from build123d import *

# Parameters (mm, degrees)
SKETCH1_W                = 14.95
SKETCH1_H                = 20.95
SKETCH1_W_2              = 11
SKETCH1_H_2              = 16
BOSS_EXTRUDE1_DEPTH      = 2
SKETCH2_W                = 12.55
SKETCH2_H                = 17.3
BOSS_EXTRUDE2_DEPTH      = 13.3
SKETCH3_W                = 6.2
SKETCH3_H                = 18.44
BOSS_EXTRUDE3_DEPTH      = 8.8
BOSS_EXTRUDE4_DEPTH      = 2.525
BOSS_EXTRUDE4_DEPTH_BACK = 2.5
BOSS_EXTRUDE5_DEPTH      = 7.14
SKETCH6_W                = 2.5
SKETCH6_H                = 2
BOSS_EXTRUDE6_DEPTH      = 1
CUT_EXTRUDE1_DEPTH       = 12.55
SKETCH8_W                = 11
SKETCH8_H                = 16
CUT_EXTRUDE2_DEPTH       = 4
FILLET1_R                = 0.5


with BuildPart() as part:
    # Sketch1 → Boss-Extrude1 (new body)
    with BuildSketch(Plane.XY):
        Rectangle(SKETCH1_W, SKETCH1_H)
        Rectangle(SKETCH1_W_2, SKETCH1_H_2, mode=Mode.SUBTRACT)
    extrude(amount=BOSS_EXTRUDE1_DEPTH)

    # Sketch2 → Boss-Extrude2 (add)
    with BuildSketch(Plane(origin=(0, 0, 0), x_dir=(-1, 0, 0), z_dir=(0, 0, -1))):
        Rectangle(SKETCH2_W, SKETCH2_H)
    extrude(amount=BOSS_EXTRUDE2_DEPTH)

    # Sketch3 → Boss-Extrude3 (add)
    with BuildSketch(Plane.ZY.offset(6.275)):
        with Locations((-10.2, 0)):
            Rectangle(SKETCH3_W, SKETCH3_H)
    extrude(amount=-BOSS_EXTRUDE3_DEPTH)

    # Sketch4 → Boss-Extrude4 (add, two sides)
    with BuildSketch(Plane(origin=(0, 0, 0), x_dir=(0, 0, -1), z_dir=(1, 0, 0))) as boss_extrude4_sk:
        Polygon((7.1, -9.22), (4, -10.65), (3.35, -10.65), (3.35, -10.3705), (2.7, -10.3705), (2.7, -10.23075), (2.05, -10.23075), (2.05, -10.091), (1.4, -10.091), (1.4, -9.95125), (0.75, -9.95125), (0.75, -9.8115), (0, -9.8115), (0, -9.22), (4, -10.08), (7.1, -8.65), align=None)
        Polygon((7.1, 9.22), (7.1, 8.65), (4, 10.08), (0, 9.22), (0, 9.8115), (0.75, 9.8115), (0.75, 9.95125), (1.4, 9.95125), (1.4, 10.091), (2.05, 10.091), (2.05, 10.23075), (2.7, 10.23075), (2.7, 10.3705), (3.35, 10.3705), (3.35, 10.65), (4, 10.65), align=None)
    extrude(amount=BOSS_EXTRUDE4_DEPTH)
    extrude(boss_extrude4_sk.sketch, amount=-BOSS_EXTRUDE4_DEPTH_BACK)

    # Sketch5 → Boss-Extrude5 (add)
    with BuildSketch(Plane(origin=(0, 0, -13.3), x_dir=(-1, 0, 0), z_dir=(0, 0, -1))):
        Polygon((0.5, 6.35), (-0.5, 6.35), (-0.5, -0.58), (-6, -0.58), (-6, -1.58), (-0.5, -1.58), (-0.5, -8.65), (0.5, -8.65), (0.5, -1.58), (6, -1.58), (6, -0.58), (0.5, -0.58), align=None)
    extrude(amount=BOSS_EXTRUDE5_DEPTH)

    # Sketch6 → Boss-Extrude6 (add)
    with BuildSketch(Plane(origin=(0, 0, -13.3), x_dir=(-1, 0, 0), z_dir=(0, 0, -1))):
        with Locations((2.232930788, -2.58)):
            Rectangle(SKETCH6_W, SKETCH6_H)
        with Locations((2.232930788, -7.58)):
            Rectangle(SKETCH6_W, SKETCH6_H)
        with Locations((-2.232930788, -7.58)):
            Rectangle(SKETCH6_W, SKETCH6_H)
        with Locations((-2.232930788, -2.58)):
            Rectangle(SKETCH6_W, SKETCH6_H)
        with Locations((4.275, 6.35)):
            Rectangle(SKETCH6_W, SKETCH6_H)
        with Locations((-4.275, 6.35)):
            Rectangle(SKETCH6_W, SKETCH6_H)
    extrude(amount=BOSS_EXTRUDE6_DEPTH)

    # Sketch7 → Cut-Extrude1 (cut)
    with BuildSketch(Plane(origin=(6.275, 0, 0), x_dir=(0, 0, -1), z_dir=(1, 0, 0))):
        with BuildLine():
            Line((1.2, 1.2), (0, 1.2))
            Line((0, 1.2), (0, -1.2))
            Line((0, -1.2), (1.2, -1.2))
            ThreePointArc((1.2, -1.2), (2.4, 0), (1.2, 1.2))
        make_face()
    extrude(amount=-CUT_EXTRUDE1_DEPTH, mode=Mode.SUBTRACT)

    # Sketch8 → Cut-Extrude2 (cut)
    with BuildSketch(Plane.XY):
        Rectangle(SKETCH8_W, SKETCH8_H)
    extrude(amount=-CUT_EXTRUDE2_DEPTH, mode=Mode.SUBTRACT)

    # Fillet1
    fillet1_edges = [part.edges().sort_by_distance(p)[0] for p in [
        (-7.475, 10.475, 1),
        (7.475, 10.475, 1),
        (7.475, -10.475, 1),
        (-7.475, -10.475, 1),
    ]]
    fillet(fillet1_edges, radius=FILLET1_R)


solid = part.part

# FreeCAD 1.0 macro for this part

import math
import FreeCAD as App
import Part
import Sketcher
from FreeCAD import Vector


def edges_at(feature, points):
    """Names of the edges that pass closest to the given points."""
    edges = feature.Shape.Edges
    near = lambda p: min(range(len(edges)), key=lambda i: edges[i].distToShape(Part.Vertex(*p))[0])
    return sorted({f"Edge{near(p) + 1}" for p in points})


def add_polygon(sketch, points):
    """Adds a closed chain of lines whose ends are joined by coincident constraints."""
    first, n = sketch.GeometryCount, len(points)
    for a, b in zip(points, points[1:] + points[:1]):
        sketch.addGeometry(Part.LineSegment(App.Vector(*a, 0), App.Vector(*b, 0)), False)
    for i in range(n):
        sketch.addConstraint(Sketcher.Constraint("Coincident", first + i, 2, first + (i + 1) % n, 1))

doc = App.newDocument("Part")
body = doc.addObject("PartDesign::Body", "Body")

# Sketch on XY plane
sketch1 = doc.addObject("Sketcher::SketchObject", "Sketch")
body.addObject(sketch1)
sketch1.AttachmentSupport = (doc.XY_Plane, [""])
sketch1.MapMode = "FlatFace"
add_polygon(sketch1, [(-7, 10), (-7, -10), (7, -10), (7, 10)])  # lines 0-3
add_polygon(sketch1, [(6, -8), (-6, -8), (-6, 8), (6, 8)])  # lines 4-7
sketch1.addConstraint(Sketcher.Constraint("Vertical", 0))
sketch1.addConstraint(Sketcher.Constraint("Horizontal", 1))
sketch1.addConstraint(Sketcher.Constraint("Vertical", 2))
sketch1.addConstraint(Sketcher.Constraint("Horizontal", 3))
sketch1.addConstraint(Sketcher.Constraint("Horizontal", 4))
sketch1.addConstraint(Sketcher.Constraint("Vertical", 5))
sketch1.addConstraint(Sketcher.Constraint("Horizontal", 6))
sketch1.addConstraint(Sketcher.Constraint("Vertical", 7))
sketch1.addConstraint(Sketcher.Constraint("Symmetric", 0, 2, 2, 2, -1, 1))
sketch1.addConstraint(Sketcher.Constraint("Symmetric", 4, 2, 6, 2, -1, 1))
sketch1.addConstraint(Sketcher.Constraint("DistanceX", 4, 2, 4, 1, 11.0))
sketch1.addConstraint(Sketcher.Constraint("DistanceY", 5, 1, 5, 2, 16.0))
sketch1.addConstraint(Sketcher.Constraint("DistanceX", 1, 1, 1, 2, 14.95))
sketch1.addConstraint(Sketcher.Constraint("DistanceY", 0, 2, 0, 1, 20.95))
pad1 = doc.addObject("PartDesign::Pad", "Pad")
body.addObject(pad1)
pad1.Profile = sketch1
pad1.Length = 2

# Sketch on XY plane
sketch2 = doc.addObject("Sketcher::SketchObject", "Sketch001")
body.addObject(sketch2)
sketch2.AttachmentSupport = (doc.XY_Plane, [""])
sketch2.MapMode = "FlatFace"
add_polygon(sketch2, [(6, 9), (6, -9), (-6, -9), (-6, 9)])  # lines 0-3
sketch2.addConstraint(Sketcher.Constraint("Vertical", 0))
sketch2.addConstraint(Sketcher.Constraint("Horizontal", 1))
sketch2.addConstraint(Sketcher.Constraint("Vertical", 2))
sketch2.addConstraint(Sketcher.Constraint("Horizontal", 3))
sketch2.addConstraint(Sketcher.Constraint("Symmetric", 0, 2, 2, 2, -1, 1))
sketch2.addConstraint(Sketcher.Constraint("DistanceY", 0, 2, 0, 1, 17.3))
sketch2.addConstraint(Sketcher.Constraint("DistanceX", 1, 2, 1, 1, 12.55))
pad2 = doc.addObject("PartDesign::Pad", "Pad001")
body.addObject(pad2)
pad2.Profile = sketch2
pad2.Length = 13.3
pad2.Reversed = True

# Sketch on YZ plane
sketch3 = doc.addObject("Sketcher::SketchObject", "Sketch002")
body.addObject(sketch3)
sketch3.AttachmentSupport = (doc.YZ_Plane, [""])
sketch3.MapMode = "FlatFace"
sketch3.AttachmentOffset = App.Placement(Vector(0, 0, -6.275), App.Rotation())
add_polygon(sketch3, [(9, -13), (-9, -13), (-9, -7), (9, -7)])  # lines 0-3
sketch3.addConstraint(Sketcher.Constraint("Horizontal", 0))
sketch3.addConstraint(Sketcher.Constraint("Vertical", 1))
sketch3.addConstraint(Sketcher.Constraint("Horizontal", 2))
sketch3.addConstraint(Sketcher.Constraint("Vertical", 3))
sketch3.addConstraint(Sketcher.Constraint("DistanceY", 1, 1, 1, 2, 6.2))
sketch3.addConstraint(Sketcher.Constraint("DistanceX", 0, 2, 0, 1, 18.44))
sketch3.addConstraint(Sketcher.Constraint("DistanceY", 0, 2, -1, 1, 13.3))
sketch3.addConstraint(Sketcher.Constraint("DistanceX", 0, 2, -1, 1, 9.22))
pad3 = doc.addObject("PartDesign::Pad", "Pad002")
body.addObject(pad3)
pad3.Profile = sketch3
pad3.Length = 8.8

# Sketch on YZ plane
sketch4 = doc.addObject("Sketcher::SketchObject", "Sketch003")
body.addObject(sketch4)
sketch4.AttachmentSupport = (doc.YZ_Plane, [""])
sketch4.MapMode = "FlatFace"
add_polygon(sketch4, [(-10.65, -4), (-9.22, -7.1), (-8.65, -7.1), (-10.08, -4), (-9.22, 0), (-9.81, 0), (-9.81, -0.75), (-9.95, -0.75), (-9.95, -1.4), (-10.09, -1.4), (-10.09, -2.05), (-10.23, -2.05), (-10.23, -2.7), (-10.37, -2.7), (-10.37, -3.35), (-10.65, -3.35)])  # lines 0-15
add_polygon(sketch4, [(8.65, -7.1), (9.22, -7.1), (10.65, -4), (10.65, -3.35), (10.37, -3.35), (10.37, -2.7), (10.23, -2.7), (10.23, -2.05), (10.09, -2.05), (10.09, -1.4), (9.95, -1.4), (9.95, -0.75), (9.81, -0.75), (9.81, 0), (9.22, 0), (10.08, -4)])  # lines 16-31
sketch4.addConstraint(Sketcher.Constraint("Horizontal", 1))
sketch4.addConstraint(Sketcher.Constraint("Horizontal", 4))
sketch4.addConstraint(Sketcher.Constraint("Vertical", 5))
sketch4.addConstraint(Sketcher.Constraint("Horizontal", 6))
sketch4.addConstraint(Sketcher.Constraint("Vertical", 7))
sketch4.addConstraint(Sketcher.Constraint("Horizontal", 8))
sketch4.addConstraint(Sketcher.Constraint("Vertical", 9))
sketch4.addConstraint(Sketcher.Constraint("Horizontal", 10))
sketch4.addConstraint(Sketcher.Constraint("Vertical", 11))
sketch4.addConstraint(Sketcher.Constraint("Horizontal", 12))
sketch4.addConstraint(Sketcher.Constraint("Vertical", 13))
sketch4.addConstraint(Sketcher.Constraint("Horizontal", 14))
sketch4.addConstraint(Sketcher.Constraint("Vertical", 15))
sketch4.addConstraint(Sketcher.Constraint("Horizontal", 16))
sketch4.addConstraint(Sketcher.Constraint("Vertical", 18))
sketch4.addConstraint(Sketcher.Constraint("Horizontal", 19))
sketch4.addConstraint(Sketcher.Constraint("Vertical", 20))
sketch4.addConstraint(Sketcher.Constraint("Horizontal", 21))
sketch4.addConstraint(Sketcher.Constraint("Vertical", 22))
sketch4.addConstraint(Sketcher.Constraint("Horizontal", 23))
sketch4.addConstraint(Sketcher.Constraint("Vertical", 24))
sketch4.addConstraint(Sketcher.Constraint("Horizontal", 25))
sketch4.addConstraint(Sketcher.Constraint("Vertical", 26))
sketch4.addConstraint(Sketcher.Constraint("Horizontal", 27))
sketch4.addConstraint(Sketcher.Constraint("Vertical", 28))
sketch4.addConstraint(Sketcher.Constraint("Horizontal", 29))
sketch4.addConstraint(Sketcher.Constraint("Symmetric", 4, 2, 28, 2, -1, 1))
sketch4.addConstraint(Sketcher.Constraint("Symmetric", 0, 2, 16, 2, -2))
sketch4.addConstraint(Sketcher.Constraint("Symmetric", 15, 2, 17, 2, -2))
sketch4.addConstraint(Sketcher.Constraint("Symmetric", 13, 2, 19, 2, -2))
sketch4.addConstraint(Sketcher.Constraint("Symmetric", 11, 2, 21, 2, -2))
sketch4.addConstraint(Sketcher.Constraint("Symmetric", 9, 2, 23, 2, -2))
sketch4.addConstraint(Sketcher.Constraint("Symmetric", 7, 2, 25, 2, -2))
sketch4.addConstraint(Sketcher.Constraint("Symmetric", 3, 2, 29, 2, -2))
sketch4.addConstraint(Sketcher.Constraint("Symmetric", 2, 2, 30, 2, -2))
sketch4.addConstraint(Sketcher.Constraint("Parallel", 0, 2))
sketch4.addConstraint(Sketcher.Constraint("Parallel", 17, 31))
sketch4.addConstraint(Sketcher.Constraint("Horizontal", 2, 2, 15, 2))
sketch4.addConstraint(Sketcher.Constraint("Horizontal", 6, 2, 26, 2))
sketch4.addConstraint(Sketcher.Constraint("Vertical", 0, 2, 3, 2))
sketch4.addConstraint(Sketcher.Constraint("Equal", 6, 8))
sketch4.addConstraint(Sketcher.Constraint("Equal", 8, 10))
sketch4.addConstraint(Sketcher.Constraint("Equal", 10, 12))
sketch4.addConstraint(Sketcher.Constraint("Equal", 7, 9))
sketch4.addConstraint(Sketcher.Constraint("Equal", 9, 11))
sketch4.addConstraint(Sketcher.Constraint("Equal", 11, 13))
sketch4.addConstraint(Sketcher.Constraint("Equal", 13, 15))
sketch4.addConstraint(Sketcher.Constraint("DistanceY", 2, 2, -1, 1, 4.0))
sketch4.addConstraint(Sketcher.Constraint("DistanceX", 31, 2, 17, 2, 2.0))
sketch4.addConstraint(Sketcher.Constraint("DistanceX", 1, 1, 1, 2, 0.57))
sketch4.addConstraint(Sketcher.Constraint("DistanceY", 5, 2, 5, 1, 0.75))
sketch4.addConstraint(Sketcher.Constraint("DistanceY", 0, 2, -1, 1, 7.1))
sketch4.addConstraint(Sketcher.Constraint("DistanceX", 2, 2, 16, 2, 19.3))
sketch4.addConstraint(Sketcher.Constraint("DistanceX", 4, 2, 4, 1, 0.5915))
sketch4.addConstraint(Sketcher.Constraint("DistanceX", 14, 2, 14, 1, 0.2795))
pad4 = doc.addObject("PartDesign::Pad", "Pad003")
body.addObject(pad4)
pad4.Profile = sketch4
pad4.Type = "TwoLengths"
pad4.Length = 2.525
pad4.Length2 = 2.5

# Sketch on XY plane
sketch5 = doc.addObject("Sketcher::SketchObject", "Sketch004")
body.addObject(sketch5)
sketch5.AttachmentSupport = (doc.XY_Plane, [""])
sketch5.MapMode = "FlatFace"
sketch5.AttachmentOffset = App.Placement(Vector(0, 0, -13.3), App.Rotation())
add_polygon(sketch5, [(-0.5, 6.3), (0.5, 6.3), (0.5, -0.6), (6, -0.6), (6, -1.6), (0.5, -1.6), (0.5, -8.7), (-0.5, -8.7), (-0.5, -1.6), (-6, -1.6), (-6, -0.6), (-0.5, -0.6)])  # lines 0-11
sketch5.addConstraint(Sketcher.Constraint("Horizontal", 0))
sketch5.addConstraint(Sketcher.Constraint("Vertical", 1))
sketch5.addConstraint(Sketcher.Constraint("Horizontal", 2))
sketch5.addConstraint(Sketcher.Constraint("Vertical", 3))
sketch5.addConstraint(Sketcher.Constraint("Horizontal", 4))
sketch5.addConstraint(Sketcher.Constraint("Vertical", 5))
sketch5.addConstraint(Sketcher.Constraint("Horizontal", 6))
sketch5.addConstraint(Sketcher.Constraint("Vertical", 7))
sketch5.addConstraint(Sketcher.Constraint("Horizontal", 8))
sketch5.addConstraint(Sketcher.Constraint("Vertical", 9))
sketch5.addConstraint(Sketcher.Constraint("Horizontal", 10))
sketch5.addConstraint(Sketcher.Constraint("Vertical", 11))
sketch5.addConstraint(Sketcher.Constraint("Symmetric", 4, 2, 7, 2, -2))
sketch5.addConstraint(Sketcher.Constraint("Symmetric", 2, 2, 9, 2, -2))
sketch5.addConstraint(Sketcher.Constraint("Vertical", 1, 2, 4, 2))
sketch5.addConstraint(Sketcher.Constraint("Vertical", 7, 2, 10, 2))
sketch5.addConstraint(Sketcher.Constraint("Equal", 6, 3))
sketch5.addConstraint(Sketcher.Constraint("DistanceX", 0, 1, 0, 2, 1.0))
sketch5.addConstraint(Sketcher.Constraint("DistanceX", 2, 1, 2, 2, 5.5))
sketch5.addConstraint(Sketcher.Constraint("DistanceY", 5, 2, 0, 2, 15.0))
sketch5.addConstraint(Sketcher.Constraint("DistanceY", 1, 2, 1, 1, 6.93))
sketch5.addConstraint(Sketcher.Constraint("DistanceY", -1, 1, 0, 2, 6.35))
pad5 = doc.addObject("PartDesign::Pad", "Pad004")
body.addObject(pad5)
pad5.Profile = sketch5
pad5.Length = 7.14
pad5.Reversed = True

# Sketch on XY plane
sketch6 = doc.addObject("Sketcher::SketchObject", "Sketch005")
body.addObject(sketch6)
sketch6.AttachmentSupport = (doc.XY_Plane, [""])
sketch6.MapMode = "FlatFace"
sketch6.AttachmentOffset = App.Placement(Vector(0, 0, -13.3), App.Rotation())
add_polygon(sketch6, [(-1, -1.6), (-1, -3.6), (-3.5, -3.6), (-3.5, -1.6)])  # lines 0-3
add_polygon(sketch6, [(-1, -6.6), (-1, -8.6), (-3.5, -8.6), (-3.5, -6.6)])  # lines 4-7
add_polygon(sketch6, [(3.5, -6.6), (3.5, -8.6), (1, -8.6), (1, -6.6)])  # lines 8-11
add_polygon(sketch6, [(3.5, -1.6), (3.5, -3.6), (1, -3.6), (1, -1.6)])  # lines 12-15
add_polygon(sketch6, [(-3, 7.3), (-3, 5.3), (-5.5, 5.3), (-5.5, 7.3)])  # lines 16-19
add_polygon(sketch6, [(5.5, 7.3), (5.5, 5.3), (3, 5.3), (3, 7.3)])  # lines 20-23
sketch6.addConstraint(Sketcher.Constraint("Vertical", 0))
sketch6.addConstraint(Sketcher.Constraint("Horizontal", 1))
sketch6.addConstraint(Sketcher.Constraint("Vertical", 2))
sketch6.addConstraint(Sketcher.Constraint("Horizontal", 3))
sketch6.addConstraint(Sketcher.Constraint("Vertical", 4))
sketch6.addConstraint(Sketcher.Constraint("Horizontal", 5))
sketch6.addConstraint(Sketcher.Constraint("Vertical", 6))
sketch6.addConstraint(Sketcher.Constraint("Horizontal", 7))
sketch6.addConstraint(Sketcher.Constraint("Vertical", 8))
sketch6.addConstraint(Sketcher.Constraint("Horizontal", 9))
sketch6.addConstraint(Sketcher.Constraint("Vertical", 10))
sketch6.addConstraint(Sketcher.Constraint("Horizontal", 11))
sketch6.addConstraint(Sketcher.Constraint("Vertical", 12))
sketch6.addConstraint(Sketcher.Constraint("Horizontal", 13))
sketch6.addConstraint(Sketcher.Constraint("Vertical", 14))
sketch6.addConstraint(Sketcher.Constraint("Horizontal", 15))
sketch6.addConstraint(Sketcher.Constraint("Vertical", 16))
sketch6.addConstraint(Sketcher.Constraint("Horizontal", 17))
sketch6.addConstraint(Sketcher.Constraint("Vertical", 18))
sketch6.addConstraint(Sketcher.Constraint("Horizontal", 19))
sketch6.addConstraint(Sketcher.Constraint("Vertical", 20))
sketch6.addConstraint(Sketcher.Constraint("Horizontal", 21))
sketch6.addConstraint(Sketcher.Constraint("Vertical", 22))
sketch6.addConstraint(Sketcher.Constraint("Horizontal", 23))
sketch6.addConstraint(Sketcher.Constraint("Symmetric", 5, 2, 8, 2, -2))
sketch6.addConstraint(Sketcher.Constraint("Symmetric", 7, 2, 10, 2, -2))
sketch6.addConstraint(Sketcher.Constraint("Symmetric", 1, 2, 12, 2, -2))
sketch6.addConstraint(Sketcher.Constraint("Symmetric", 3, 2, 14, 2, -2))
sketch6.addConstraint(Sketcher.Constraint("Symmetric", 17, 2, 20, 2, -2))
sketch6.addConstraint(Sketcher.Constraint("Symmetric", 19, 2, 22, 2, -2))
sketch6.addConstraint(Sketcher.Constraint("Vertical", 3, 2, 4, 2))
sketch6.addConstraint(Sketcher.Constraint("Vertical", 2, 2, 5, 2))
sketch6.addConstraint(Sketcher.Constraint("Equal", 15, 17))
sketch6.addConstraint(Sketcher.Constraint("Equal", 2, 4))
sketch6.addConstraint(Sketcher.Constraint("Equal", 14, 16))
sketch6.addConstraint(Sketcher.Constraint("DistanceY", 0, 2, 0, 1, 2.0))
sketch6.addConstraint(Sketcher.Constraint("DistanceX", 1, 2, 1, 1, 2.5))
sketch6.addConstraint(Sketcher.Constraint("DistanceY", 4, 2, 0, 2, 5.0))
sketch6.addConstraint(Sketcher.Constraint("DistanceY", 0, 2, -1, 1, 3.58))
sketch6.addConstraint(Sketcher.Constraint("DistanceY", -1, 1, 16, 2, 5.35))
sketch6.addConstraint(Sketcher.Constraint("DistanceX", 16, 2, 20, 2, 8.55))
sketch6.addConstraint(Sketcher.Constraint("DistanceX", 0, 2, -1, 1, 0.982931))
pad6 = doc.addObject("PartDesign::Pad", "Pad005")
body.addObject(pad6)
pad6.Profile = sketch6
pad6.Length = 1
pad6.Reversed = True

# Sketch on YZ plane
sketch7 = doc.addObject("Sketcher::SketchObject", "Sketch006")
body.addObject(sketch7)
sketch7.AttachmentSupport = (doc.YZ_Plane, [""])
sketch7.MapMode = "FlatFace"
sketch7.AttachmentOffset = App.Placement(Vector(0, 0, 6.275), App.Rotation())
sketch7.addGeometry(Part.LineSegment(Vector(1.2, -1.2, 0), Vector(1.2, 0, 0)), False)
sketch7.addGeometry(Part.LineSegment(Vector(1.2, 0, 0), Vector(-1.2, 0, 0)), False)
sketch7.addGeometry(Part.LineSegment(Vector(-1.2, 0, 0), Vector(-1.2, -1.2, 0)), False)
sketch7.addGeometry(Part.ArcOfCircle(Part.Circle(Vector(0, -1.2, 0), Vector(0, 0, 1), 1.2), math.radians(180), math.radians(360)), False)
sketch7.addConstraint(Sketcher.Constraint("Coincident", 0, 2, 1, 1))
sketch7.addConstraint(Sketcher.Constraint("Coincident", 1, 2, 2, 1))
sketch7.addConstraint(Sketcher.Constraint("Tangent", 2, 2, 3, 1))
sketch7.addConstraint(Sketcher.Constraint("Tangent", 3, 2, 0, 1))
sketch7.addConstraint(Sketcher.Constraint("Vertical", 0))
sketch7.addConstraint(Sketcher.Constraint("Horizontal", 1))
sketch7.addConstraint(Sketcher.Constraint("Vertical", 2))
sketch7.addConstraint(Sketcher.Constraint("Symmetric", 0, 2, 1, 2, -1, 1))
sketch7.addConstraint(Sketcher.Constraint("Radius", 3, 1.2))
sketch7.addConstraint(Sketcher.Constraint("DistanceY", 0, 1, 0, 2, 1.2))
pocket1 = doc.addObject("PartDesign::Pocket", "Pocket")
body.addObject(pocket1)
pocket1.Profile = sketch7
pocket1.Length = 12.55

# Sketch on XY plane
sketch8 = doc.addObject("Sketcher::SketchObject", "Sketch007")
body.addObject(sketch8)
sketch8.AttachmentSupport = (doc.XY_Plane, [""])
sketch8.MapMode = "FlatFace"
add_polygon(sketch8, [(-6, 8), (-6, -8), (6, -8), (6, 8)])  # lines 0-3
sketch8.addConstraint(Sketcher.Constraint("Vertical", 0))
sketch8.addConstraint(Sketcher.Constraint("Horizontal", 1))
sketch8.addConstraint(Sketcher.Constraint("Vertical", 2))
sketch8.addConstraint(Sketcher.Constraint("Horizontal", 3))
sketch8.addConstraint(Sketcher.Constraint("Symmetric", 0, 2, 2, 2, -1, 1))
sketch8.addConstraint(Sketcher.Constraint("DistanceX", 1, 1, 1, 2, 11.0))
sketch8.addConstraint(Sketcher.Constraint("DistanceY", 0, 2, 0, 1, 16.0))
pocket2 = doc.addObject("PartDesign::Pocket", "Pocket001")
body.addObject(pocket2)
pocket2.Profile = sketch8
pocket2.Length = 4
doc.recompute()

fillet = doc.addObject("PartDesign::Fillet", "Fillet")
body.addObject(fillet)
fillet.Base = (pocket2, edges_at(pocket2, [
    (-7.475, 10.475, 1),
    (7.475, 10.475, 1),
    (7.475, -10.475, 1),
    (-7.475, -10.475, 1),
]))
fillet.Radius = 0.5

doc.recompute()
